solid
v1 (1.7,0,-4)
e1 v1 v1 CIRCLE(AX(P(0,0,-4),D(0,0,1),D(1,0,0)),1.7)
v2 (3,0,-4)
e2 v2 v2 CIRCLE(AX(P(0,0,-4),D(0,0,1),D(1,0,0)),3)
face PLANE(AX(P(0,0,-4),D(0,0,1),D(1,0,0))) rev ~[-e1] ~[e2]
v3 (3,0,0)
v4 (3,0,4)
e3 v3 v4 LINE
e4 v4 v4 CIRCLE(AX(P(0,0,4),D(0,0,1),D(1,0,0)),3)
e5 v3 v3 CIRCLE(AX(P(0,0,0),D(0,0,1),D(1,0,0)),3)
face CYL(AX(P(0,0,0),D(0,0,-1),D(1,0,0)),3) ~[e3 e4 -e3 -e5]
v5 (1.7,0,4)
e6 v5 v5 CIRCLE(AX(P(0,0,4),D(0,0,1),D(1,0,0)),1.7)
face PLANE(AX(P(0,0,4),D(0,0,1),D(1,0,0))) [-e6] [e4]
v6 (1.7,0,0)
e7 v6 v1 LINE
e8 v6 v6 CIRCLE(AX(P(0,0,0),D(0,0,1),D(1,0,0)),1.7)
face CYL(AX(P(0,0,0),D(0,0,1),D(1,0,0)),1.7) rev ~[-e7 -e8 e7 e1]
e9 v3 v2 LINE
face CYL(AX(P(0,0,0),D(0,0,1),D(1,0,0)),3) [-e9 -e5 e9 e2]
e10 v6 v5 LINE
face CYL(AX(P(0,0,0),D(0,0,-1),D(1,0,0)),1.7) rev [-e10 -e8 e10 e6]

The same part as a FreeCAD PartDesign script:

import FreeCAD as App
import Part
import Sketcher
Q = App.Units.Quantity

doc = App.newDocument("Part")
body = doc.addObject("PartDesign::Body", "Body")

sketch1 = doc.addObject("Sketcher::SketchObject", "Sketch")
body.addObject(sketch1)
sketch1.AttachmentSupport = (doc.XY_Plane, [""])
sketch1.MapMode = "FlatFace"
sketch1.addGeometry(Part.Circle(App.Vector(0, 0, 0), App.Vector(0, 0, 1), 3), False)
sketch1.addGeometry(Part.Circle(App.Vector(0, 0, 0), App.Vector(0, 0, 1), 1.7), False)
sketch1.addConstraint(Sketcher.Constraint("Coincident", 0, 3, -1, 1))
sketch1.addConstraint(Sketcher.Constraint("Coincident", 1, 3, -1, 1))
sketch1.addConstraint(Sketcher.Constraint("Diameter", 0, Q("6 mm")))
sketch1.addConstraint(Sketcher.Constraint("Diameter", 1, Q("3.4 mm")))
pad1 = doc.addObject("PartDesign::Pad", "Pad")
body.addObject(pad1)
pad1.Profile = sketch1
pad1.Length = 8
pad1.Midplane = True

doc.recompute()
